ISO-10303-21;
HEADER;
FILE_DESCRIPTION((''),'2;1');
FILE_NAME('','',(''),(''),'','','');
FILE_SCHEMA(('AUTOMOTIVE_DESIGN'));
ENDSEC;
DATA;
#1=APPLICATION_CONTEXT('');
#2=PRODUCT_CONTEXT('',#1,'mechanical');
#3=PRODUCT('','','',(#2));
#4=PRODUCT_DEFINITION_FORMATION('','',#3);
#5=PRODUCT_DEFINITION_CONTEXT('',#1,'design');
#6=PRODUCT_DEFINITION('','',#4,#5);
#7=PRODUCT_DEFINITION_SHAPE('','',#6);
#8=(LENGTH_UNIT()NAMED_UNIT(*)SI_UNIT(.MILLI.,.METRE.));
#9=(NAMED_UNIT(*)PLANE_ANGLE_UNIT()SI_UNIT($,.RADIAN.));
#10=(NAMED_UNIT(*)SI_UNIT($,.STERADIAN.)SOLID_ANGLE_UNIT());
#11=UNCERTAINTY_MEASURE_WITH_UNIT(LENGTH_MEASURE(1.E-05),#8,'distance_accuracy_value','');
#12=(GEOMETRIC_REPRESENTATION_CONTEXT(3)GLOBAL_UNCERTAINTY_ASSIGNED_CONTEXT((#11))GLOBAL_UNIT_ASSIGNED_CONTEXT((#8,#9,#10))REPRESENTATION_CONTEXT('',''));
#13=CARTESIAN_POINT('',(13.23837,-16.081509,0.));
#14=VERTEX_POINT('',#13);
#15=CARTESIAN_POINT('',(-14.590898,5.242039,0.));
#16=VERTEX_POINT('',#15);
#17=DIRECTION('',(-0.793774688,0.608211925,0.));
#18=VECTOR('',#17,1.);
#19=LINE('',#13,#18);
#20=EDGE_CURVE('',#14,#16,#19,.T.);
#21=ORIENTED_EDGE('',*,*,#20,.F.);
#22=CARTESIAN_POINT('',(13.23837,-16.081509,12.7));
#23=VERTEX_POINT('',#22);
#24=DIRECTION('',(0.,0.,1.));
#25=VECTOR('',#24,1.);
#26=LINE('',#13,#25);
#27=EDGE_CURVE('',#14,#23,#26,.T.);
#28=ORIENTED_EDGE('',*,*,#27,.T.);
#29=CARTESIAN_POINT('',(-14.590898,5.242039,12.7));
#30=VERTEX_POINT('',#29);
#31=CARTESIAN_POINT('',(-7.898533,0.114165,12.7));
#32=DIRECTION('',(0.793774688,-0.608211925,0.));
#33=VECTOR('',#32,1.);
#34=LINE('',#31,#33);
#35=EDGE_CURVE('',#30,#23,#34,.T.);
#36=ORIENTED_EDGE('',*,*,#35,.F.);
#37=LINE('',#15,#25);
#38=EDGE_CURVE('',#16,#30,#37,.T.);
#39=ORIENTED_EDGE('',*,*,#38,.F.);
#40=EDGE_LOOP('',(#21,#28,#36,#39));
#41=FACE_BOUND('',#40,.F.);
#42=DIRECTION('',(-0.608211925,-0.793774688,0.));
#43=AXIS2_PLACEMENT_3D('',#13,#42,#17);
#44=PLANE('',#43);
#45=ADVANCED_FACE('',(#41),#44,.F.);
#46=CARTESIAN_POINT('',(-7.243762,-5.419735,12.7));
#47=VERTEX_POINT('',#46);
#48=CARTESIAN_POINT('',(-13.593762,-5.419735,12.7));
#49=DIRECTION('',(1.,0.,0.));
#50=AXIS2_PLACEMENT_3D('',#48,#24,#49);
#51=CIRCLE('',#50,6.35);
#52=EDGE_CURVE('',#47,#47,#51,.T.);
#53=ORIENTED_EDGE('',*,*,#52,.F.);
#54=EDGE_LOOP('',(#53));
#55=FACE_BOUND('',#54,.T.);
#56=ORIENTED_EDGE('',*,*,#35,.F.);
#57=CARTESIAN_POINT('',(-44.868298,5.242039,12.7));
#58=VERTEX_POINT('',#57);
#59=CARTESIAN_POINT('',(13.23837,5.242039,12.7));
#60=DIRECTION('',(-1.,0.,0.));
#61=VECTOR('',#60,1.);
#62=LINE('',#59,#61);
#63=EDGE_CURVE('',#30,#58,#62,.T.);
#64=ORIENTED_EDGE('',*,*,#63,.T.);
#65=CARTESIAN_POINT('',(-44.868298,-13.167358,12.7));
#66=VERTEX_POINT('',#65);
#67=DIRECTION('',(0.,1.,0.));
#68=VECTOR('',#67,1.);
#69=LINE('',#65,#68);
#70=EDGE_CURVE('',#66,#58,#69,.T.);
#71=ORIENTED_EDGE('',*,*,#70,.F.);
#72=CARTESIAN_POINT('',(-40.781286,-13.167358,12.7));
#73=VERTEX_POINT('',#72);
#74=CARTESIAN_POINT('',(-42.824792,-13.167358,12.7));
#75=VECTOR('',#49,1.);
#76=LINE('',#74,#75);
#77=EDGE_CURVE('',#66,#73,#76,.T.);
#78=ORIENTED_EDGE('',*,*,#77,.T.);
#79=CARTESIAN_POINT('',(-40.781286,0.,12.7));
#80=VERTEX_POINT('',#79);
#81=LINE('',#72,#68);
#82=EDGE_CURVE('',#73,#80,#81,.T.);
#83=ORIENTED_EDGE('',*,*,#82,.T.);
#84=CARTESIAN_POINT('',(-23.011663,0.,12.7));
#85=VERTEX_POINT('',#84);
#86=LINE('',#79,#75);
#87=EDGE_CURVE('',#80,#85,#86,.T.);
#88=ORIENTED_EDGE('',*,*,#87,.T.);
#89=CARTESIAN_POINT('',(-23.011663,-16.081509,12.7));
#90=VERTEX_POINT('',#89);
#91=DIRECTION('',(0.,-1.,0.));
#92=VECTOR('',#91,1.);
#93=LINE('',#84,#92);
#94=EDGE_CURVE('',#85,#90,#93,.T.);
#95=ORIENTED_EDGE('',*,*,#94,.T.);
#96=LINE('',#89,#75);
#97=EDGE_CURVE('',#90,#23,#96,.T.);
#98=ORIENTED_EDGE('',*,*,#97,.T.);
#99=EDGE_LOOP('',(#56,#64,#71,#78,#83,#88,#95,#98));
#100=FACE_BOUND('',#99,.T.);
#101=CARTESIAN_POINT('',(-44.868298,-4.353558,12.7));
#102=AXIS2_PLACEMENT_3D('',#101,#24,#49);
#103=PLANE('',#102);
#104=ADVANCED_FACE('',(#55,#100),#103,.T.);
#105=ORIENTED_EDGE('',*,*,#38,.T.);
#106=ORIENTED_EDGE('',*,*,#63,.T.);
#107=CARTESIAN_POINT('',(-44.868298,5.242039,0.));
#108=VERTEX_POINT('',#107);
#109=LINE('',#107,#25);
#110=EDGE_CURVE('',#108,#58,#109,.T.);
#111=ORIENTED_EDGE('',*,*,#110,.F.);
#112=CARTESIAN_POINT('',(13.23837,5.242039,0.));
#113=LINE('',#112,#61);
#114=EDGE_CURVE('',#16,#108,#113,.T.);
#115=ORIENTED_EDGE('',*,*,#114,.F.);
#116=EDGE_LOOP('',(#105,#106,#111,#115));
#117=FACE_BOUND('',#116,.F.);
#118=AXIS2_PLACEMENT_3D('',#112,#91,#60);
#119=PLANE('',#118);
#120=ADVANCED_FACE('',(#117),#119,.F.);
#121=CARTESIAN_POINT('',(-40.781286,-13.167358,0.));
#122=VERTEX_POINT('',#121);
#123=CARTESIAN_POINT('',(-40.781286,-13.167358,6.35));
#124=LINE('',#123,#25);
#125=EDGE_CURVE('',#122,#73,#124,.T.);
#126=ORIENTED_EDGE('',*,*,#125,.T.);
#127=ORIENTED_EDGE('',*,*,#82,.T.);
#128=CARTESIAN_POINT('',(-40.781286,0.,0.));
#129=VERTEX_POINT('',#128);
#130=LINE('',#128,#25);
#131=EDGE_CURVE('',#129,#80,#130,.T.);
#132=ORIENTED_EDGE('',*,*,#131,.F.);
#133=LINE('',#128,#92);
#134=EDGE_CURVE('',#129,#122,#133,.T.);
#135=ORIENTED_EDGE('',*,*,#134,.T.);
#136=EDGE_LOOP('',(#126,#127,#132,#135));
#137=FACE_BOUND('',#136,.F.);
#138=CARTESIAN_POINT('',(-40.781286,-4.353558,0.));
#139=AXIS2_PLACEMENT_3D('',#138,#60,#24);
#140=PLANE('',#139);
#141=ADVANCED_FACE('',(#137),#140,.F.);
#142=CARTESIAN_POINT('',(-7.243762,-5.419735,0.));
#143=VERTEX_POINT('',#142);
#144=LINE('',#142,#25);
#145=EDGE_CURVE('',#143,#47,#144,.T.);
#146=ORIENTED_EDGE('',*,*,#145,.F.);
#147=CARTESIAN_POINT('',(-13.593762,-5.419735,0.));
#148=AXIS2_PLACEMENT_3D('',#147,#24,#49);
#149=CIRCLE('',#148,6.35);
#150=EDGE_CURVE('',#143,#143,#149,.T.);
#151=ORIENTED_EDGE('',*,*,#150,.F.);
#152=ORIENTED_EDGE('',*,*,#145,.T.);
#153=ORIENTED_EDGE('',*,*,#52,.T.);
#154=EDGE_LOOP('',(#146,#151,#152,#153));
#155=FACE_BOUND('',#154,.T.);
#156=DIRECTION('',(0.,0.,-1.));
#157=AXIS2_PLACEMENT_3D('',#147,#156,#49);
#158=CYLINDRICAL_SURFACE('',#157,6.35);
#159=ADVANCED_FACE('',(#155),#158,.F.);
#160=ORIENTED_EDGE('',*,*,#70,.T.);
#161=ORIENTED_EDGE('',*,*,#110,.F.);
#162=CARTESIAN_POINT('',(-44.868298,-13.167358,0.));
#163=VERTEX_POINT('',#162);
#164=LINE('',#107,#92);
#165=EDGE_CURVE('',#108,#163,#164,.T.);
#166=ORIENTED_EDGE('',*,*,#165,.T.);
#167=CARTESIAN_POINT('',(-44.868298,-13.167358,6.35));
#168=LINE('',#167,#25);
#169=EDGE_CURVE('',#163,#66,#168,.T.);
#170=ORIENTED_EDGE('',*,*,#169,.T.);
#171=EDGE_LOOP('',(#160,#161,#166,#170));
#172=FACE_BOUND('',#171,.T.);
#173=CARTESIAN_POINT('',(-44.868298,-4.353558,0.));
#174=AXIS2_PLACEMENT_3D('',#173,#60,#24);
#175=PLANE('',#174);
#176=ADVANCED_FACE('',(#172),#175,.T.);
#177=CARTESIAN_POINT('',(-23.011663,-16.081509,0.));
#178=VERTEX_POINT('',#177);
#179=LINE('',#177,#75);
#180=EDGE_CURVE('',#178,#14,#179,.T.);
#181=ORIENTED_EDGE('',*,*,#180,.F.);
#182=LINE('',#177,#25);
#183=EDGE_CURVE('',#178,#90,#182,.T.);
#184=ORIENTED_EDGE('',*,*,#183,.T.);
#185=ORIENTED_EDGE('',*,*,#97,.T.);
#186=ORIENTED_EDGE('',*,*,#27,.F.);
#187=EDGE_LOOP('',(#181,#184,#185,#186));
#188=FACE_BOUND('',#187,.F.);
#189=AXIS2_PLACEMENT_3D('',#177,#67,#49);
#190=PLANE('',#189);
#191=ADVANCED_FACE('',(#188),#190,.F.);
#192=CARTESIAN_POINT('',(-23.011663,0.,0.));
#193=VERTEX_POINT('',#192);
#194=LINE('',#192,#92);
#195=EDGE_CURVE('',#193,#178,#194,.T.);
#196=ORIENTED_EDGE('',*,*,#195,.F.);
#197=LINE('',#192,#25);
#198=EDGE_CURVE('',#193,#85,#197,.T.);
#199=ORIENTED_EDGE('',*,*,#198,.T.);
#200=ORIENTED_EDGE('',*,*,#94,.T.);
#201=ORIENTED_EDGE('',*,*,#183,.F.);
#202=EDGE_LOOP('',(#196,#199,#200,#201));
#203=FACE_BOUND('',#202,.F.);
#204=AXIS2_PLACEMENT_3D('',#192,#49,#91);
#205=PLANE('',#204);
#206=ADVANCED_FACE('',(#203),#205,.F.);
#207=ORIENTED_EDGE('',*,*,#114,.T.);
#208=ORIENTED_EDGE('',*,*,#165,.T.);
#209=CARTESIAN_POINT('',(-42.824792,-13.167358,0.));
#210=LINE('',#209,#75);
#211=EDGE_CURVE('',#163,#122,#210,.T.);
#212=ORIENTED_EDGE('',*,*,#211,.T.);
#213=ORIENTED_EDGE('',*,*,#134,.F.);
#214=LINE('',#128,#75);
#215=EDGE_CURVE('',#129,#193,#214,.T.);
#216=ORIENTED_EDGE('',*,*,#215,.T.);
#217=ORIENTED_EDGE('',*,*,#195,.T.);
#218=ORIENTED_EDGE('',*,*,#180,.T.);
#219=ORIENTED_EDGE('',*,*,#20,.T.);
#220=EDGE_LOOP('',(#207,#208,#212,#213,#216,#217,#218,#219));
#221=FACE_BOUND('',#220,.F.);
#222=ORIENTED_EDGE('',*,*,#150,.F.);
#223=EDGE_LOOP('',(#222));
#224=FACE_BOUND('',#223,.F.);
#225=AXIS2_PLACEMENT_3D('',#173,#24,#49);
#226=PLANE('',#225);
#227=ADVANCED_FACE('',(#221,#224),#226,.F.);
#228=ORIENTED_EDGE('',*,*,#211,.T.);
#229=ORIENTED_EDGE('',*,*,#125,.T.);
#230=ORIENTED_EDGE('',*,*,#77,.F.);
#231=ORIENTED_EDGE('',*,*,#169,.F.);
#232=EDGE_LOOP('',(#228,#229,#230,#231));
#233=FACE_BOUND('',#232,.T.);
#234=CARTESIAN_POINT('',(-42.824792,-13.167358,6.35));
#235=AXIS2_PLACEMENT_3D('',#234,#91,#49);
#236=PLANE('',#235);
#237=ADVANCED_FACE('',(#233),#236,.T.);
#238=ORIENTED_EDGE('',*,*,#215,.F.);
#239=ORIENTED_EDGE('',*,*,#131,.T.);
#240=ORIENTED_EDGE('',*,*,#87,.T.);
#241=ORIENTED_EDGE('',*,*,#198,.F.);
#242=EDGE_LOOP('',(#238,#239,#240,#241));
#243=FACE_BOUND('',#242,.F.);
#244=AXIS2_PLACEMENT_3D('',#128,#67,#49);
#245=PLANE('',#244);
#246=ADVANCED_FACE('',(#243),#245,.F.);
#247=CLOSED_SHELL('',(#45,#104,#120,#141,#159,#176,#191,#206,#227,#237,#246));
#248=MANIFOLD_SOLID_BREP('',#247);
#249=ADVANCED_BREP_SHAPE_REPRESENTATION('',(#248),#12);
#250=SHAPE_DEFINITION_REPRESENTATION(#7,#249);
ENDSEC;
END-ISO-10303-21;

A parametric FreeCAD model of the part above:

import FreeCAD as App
import Part
import Sketcher

V = App.Vector
Q = App.Units.Quantity


def add_polygon(sketch, points):
    """Adds a closed chain of lines whose ends are joined by coincident constraints."""
    first, n = sketch.GeometryCount, len(points)
    for a, b in zip(points, points[1:] + points[:1]):
        sketch.addGeometry(Part.LineSegment(App.Vector(*a, 0), App.Vector(*b, 0)), False)
    for i in range(n):
        sketch.addConstraint(Sketcher.Constraint("Coincident", first + i, 2, first + (i + 1) % n, 1))

doc = App.newDocument("Part")
params = doc.addObject("Spreadsheet::Sheet", "Params")
for row, (alias, value) in enumerate([
    ("sketch1_diameter", "0.5 in"),
    ("pad1_length", "0.5 in"),
    ("sketch2_height", "0.5 in"),
    ("pad2_length", "0.347 in"),
], start=1):
    params.set(f"A{row}", alias)
    params.set(f"B{row}", "=" + value)
    params.setAlias(f"B{row}", alias)

body = doc.addObject("PartDesign::Body", "Body")

# Sketch on XY plane
sketch1 = body.newObject("Sketcher::SketchObject", "Sketch")
sketch1.AttachmentSupport = (doc.getObject("XY_Plane"), [""])
sketch1.MapMode = "FlatFace"
add_polygon(sketch1, [(-44.9, 5.2), (-44.9, -4.4), (-40.8, -4.4), (-40.8, 0), (-23, 0), (-23, -16.1), (13.2, -16.1), (13.2, 5.2)])  # lines 0-7
sketch1.addGeometry(Part.Circle(V(-13.6, -5.4, 0), V(0, 0, 1), 6.3), False)  # 8
sketch1.addConstraint([
    Sketcher.Constraint("Vertical", 0),
    Sketcher.Constraint("Horizontal", 1),
    Sketcher.Constraint("Vertical", 2),
    Sketcher.Constraint("Horizontal", 3),
    Sketcher.Constraint("Vertical", 4),
    Sketcher.Constraint("Horizontal", 5),
    Sketcher.Constraint("Vertical", 6),
    Sketcher.Constraint("Horizontal", 7),
    Sketcher.Constraint("PointOnObject", 2, 2, -1),
    Sketcher.Constraint("Diameter", 8, Q("0.5 in")),
    Sketcher.Constraint("DistanceY", 2, 1, 2, 2, Q("0.1713999 in")),
    Sketcher.Constraint("DistanceY", 4, 2, 4, 1, 16.081509),
    Sketcher.Constraint("DistanceY", 6, 1, 6, 2, 21.323548),
    Sketcher.Constraint("DistanceX", 0, 2, -1, 1, 44.868298),
    Sketcher.Constraint("DistanceX", 3, 2, 8, 3, 9.417901),
    Sketcher.Constraint("DistanceX", 1, 1, 1, 2, 4.087012),
    Sketcher.Constraint("DistanceX", 3, 1, 3, 2, 17.769623),
    Sketcher.Constraint("DistanceX", 5, 1, 5, 2, 36.250033),
    Sketcher.Constraint("DistanceY", 8, 3, -1, 1, 5.419735),
])
sketch1.setExpression("Constraints[17]", "Params.sketch1_diameter")
pad1 = body.newObject("PartDesign::Pad", "Pad")
pad1.Profile = sketch1
pad1.setExpression("Length", "Params.pad1_length")

# Sketch on XZ plane
sketch2 = body.newObject("Sketcher::SketchObject", "Sketch001")
sketch2.AttachmentSupport = (doc.getObject("XZ_Plane"), [""])
sketch2.MapMode = "FlatFace"
sketch2.AttachmentOffset = App.Placement(V(0, 0, 0.1713999 * 25.4), App.Rotation())
add_polygon(sketch2, [(-44.9, 12.7), (-44.9, 0), (-40.8, 0), (-40.8, 12.7)])  # lines 0-3
sketch2.addConstraint([
    Sketcher.Constraint("Vertical", 0),
    Sketcher.Constraint("Horizontal", 1),
    Sketcher.Constraint("Vertical", 2),
    Sketcher.Constraint("Horizontal", 3),
    Sketcher.Constraint("PointOnObject", 0, 2, -1),
    Sketcher.Constraint("DistanceY", 0, 2, 0, 1, Q("0.5 in")),
    Sketcher.Constraint("DistanceX", 0, 2, -1, 1, 44.868298),
    Sketcher.Constraint("DistanceX", 1, 1, 1, 2, 4.087012),
])
sketch2.setExpression("Constraints[9]", "Params.sketch2_height")
pad2 = body.newObject("PartDesign::Pad", "Pad001")
pad2.Profile = sketch2
pad2.setExpression("Length", "Params.pad2_length")

# Sketch on XY plane
sketch3 = body.newObject("Sketcher::SketchObject", "Sketch002")
sketch3.AttachmentSupport = (doc.getObject("XY_Plane"), [""])
sketch3.MapMode = "FlatFace"
add_polygon(sketch3, [(13, 5), (13, -16), (-15, 5)])  # lines 0-2
sketch3.addConstraint([
    Sketcher.Constraint("Vertical", 0),
    Sketcher.Constraint("Horizontal", 2),
    Sketcher.Constraint("DistanceY", 0, 2, 0, 1, 21.323548),
    Sketcher.Constraint("DistanceX", 2, 1, 2, 2, 27.829268),
    Sketcher.Constraint("DistanceX", -1, 1, 0, 2, 13.23837),
    Sketcher.Constraint("DistanceY", 0, 2, -1, 1, 16.081509),
])
pocket1 = body.newObject("PartDesign::Pocket", "Pocket")
pocket1.Profile = sketch3
pocket1.Type = "ThroughAll"
pocket1.Reversed = True

doc.recompute()
